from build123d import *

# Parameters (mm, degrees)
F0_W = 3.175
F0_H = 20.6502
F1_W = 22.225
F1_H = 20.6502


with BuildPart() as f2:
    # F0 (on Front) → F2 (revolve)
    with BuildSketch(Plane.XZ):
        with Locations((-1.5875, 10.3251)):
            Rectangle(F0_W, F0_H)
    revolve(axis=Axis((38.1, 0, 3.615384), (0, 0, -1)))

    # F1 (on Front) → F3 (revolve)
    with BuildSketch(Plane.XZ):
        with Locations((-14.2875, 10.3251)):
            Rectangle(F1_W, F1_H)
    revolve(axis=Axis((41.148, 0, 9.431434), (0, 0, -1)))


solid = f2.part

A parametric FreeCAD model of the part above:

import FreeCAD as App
import Part
import Sketcher
from FreeCAD import Vector
Q = App.Units.Quantity

doc = App.newDocument("Part")
params = doc.addObject("Spreadsheet::Sheet", "Params")
for row, (alias, value) in enumerate([
    ("sketch1_width", "0.125 in"),
    ("sketch1_height", "0.813 in"),
    ("revolution_angle", "360 deg"),
    ("sketch2_width", "0.875 in"),
    ("sketch2_height", "0.813 in"),
    ("revolution2_angle", "360 deg"),
], start=1):
    params.set(f"A{row}", alias)
    params.set(f"B{row}", "=" + value)
    params.setAlias(f"B{row}", alias)

body = doc.addObject("PartDesign::Body", "Body")
body.AllowCompound = True

# Sketch on XZ plane
sketch1 = doc.addObject("Sketcher::SketchObject", "Sketch")
body.addObject(sketch1)
sketch1.AttachmentSupport = (doc.XZ_Plane, [""])
sketch1.MapMode = "FlatFace"
sketch1.addGeometry(Part.LineSegment(Vector(-3.175, 20.6502, 0), Vector(-3.175, 0, 0)), False)
sketch1.addGeometry(Part.LineSegment(Vector(-3.175, 0, 0), Vector(0, 0, 0)), False)
sketch1.addGeometry(Part.LineSegment(Vector(0, 0, 0), Vector(0, 20.6502, 0)), False)
sketch1.addGeometry(Part.LineSegment(Vector(0, 20.6502, 0), Vector(-3.175, 20.6502, 0)), False)
sketch1.addGeometry(Part.LineSegment(Vector(38.1, 20.6502, 0), Vector(38.1, 0, 0)), True)  # axis
sketch1.addConstraint(Sketcher.Constraint("Coincident", 0, 2, 1, 1))
sketch1.addConstraint(Sketcher.Constraint("Coincident", 1, 2, 2, 1))
sketch1.addConstraint(Sketcher.Constraint("Coincident", 2, 2, 3, 1))
sketch1.addConstraint(Sketcher.Constraint("Coincident", 3, 2, 0, 1))
sketch1.addConstraint(Sketcher.Constraint("Vertical", 0))
sketch1.addConstraint(Sketcher.Constraint("Horizontal", 1))
sketch1.addConstraint(Sketcher.Constraint("Vertical", 2))
sketch1.addConstraint(Sketcher.Constraint("Horizontal", 3))
sketch1.addConstraint(Sketcher.Constraint("Vertical", 4))
sketch1.addConstraint(Sketcher.Constraint("Coincident", 1, 2, -1, 1))
sketch1.addConstraint(Sketcher.Constraint("PointOnObject", 4, 2, -1))
sketch1.addConstraint(Sketcher.Constraint("Horizontal", 3, 2, 4, 1))
sketch1.addConstraint(Sketcher.Constraint("DistanceX", -1, 1, 4, 1, Q("1.5 in")))
sketch1.addConstraint(Sketcher.Constraint("DistanceX", 1, 1, 1, 2, Q("0.125 in")))
sketch1.addConstraint(Sketcher.Constraint("DistanceY", 0, 2, 0, 1, Q("0.813 in")))
sketch1.setExpression("Constraints[13]", "Params.sketch1_width")
sketch1.setExpression("Constraints[14]", "Params.sketch1_height")
revolution = doc.addObject("PartDesign::Revolution", "Revolution")
body.addObject(revolution)
revolution.Profile = sketch1
revolution.ReferenceAxis = (sketch1, ["Axis0"])
revolution.setExpression("Angle", "Params.revolution_angle")

# Sketch on XZ plane
sketch2 = doc.addObject("Sketcher::SketchObject", "Sketch001")
body.addObject(sketch2)
sketch2.AttachmentSupport = (doc.XZ_Plane, [""])
sketch2.MapMode = "FlatFace"
sketch2.addGeometry(Part.LineSegment(Vector(-25.4, 20.6502, 0), Vector(-25.4, 0, 0)), False)
sketch2.addGeometry(Part.LineSegment(Vector(-25.4, 0, 0), Vector(-3.175, 0, 0)), False)
sketch2.addGeometry(Part.LineSegment(Vector(-3.175, 0, 0), Vector(-3.175, 20.6502, 0)), False)
sketch2.addGeometry(Part.LineSegment(Vector(-3.175, 20.6502, 0), Vector(-25.4, 20.6502, 0)), False)
sketch2.addGeometry(Part.LineSegment(Vector(41.148, 20.6502, 0), Vector(41.148, 0, 0)), True)  # axis
sketch2.addConstraint(Sketcher.Constraint("Coincident", 0, 2, 1, 1))
sketch2.addConstraint(Sketcher.Constraint("Coincident", 1, 2, 2, 1))
sketch2.addConstraint(Sketcher.Constraint("Coincident", 2, 2, 3, 1))
sketch2.addConstraint(Sketcher.Constraint("Coincident", 3, 2, 0, 1))
sketch2.addConstraint(Sketcher.Constraint("Vertical", 0))
sketch2.addConstraint(Sketcher.Constraint("Horizontal", 1))
sketch2.addConstraint(Sketcher.Constraint("Vertical", 2))
sketch2.addConstraint(Sketcher.Constraint("Horizontal", 3))
sketch2.addConstraint(Sketcher.Constraint("Vertical", 4))
sketch2.addConstraint(Sketcher.Constraint("PointOnObject", 0, 2, -1))
sketch2.addConstraint(Sketcher.Constraint("PointOnObject", 4, 2, -1))
sketch2.addConstraint(Sketcher.Constraint("Horizontal", 3, 2, 4, 1))
sketch2.addConstraint(Sketcher.Constraint("DistanceX", 0, 2, -1, 1, Q("1 in")))
sketch2.addConstraint(Sketcher.Constraint("DistanceX", 1, 1, 1, 2, Q("0.875 in")))
sketch2.addConstraint(Sketcher.Constraint("DistanceY", 0, 2, 0, 1, Q("0.813 in")))
sketch2.addConstraint(Sketcher.Constraint("DistanceX", -1, 1, 4, 1, Q("1.62 in")))
sketch2.setExpression("Constraints[13]", "Params.sketch2_width")
sketch2.setExpression("Constraints[14]", "Params.sketch2_height")
revolution2 = doc.addObject("PartDesign::Revolution", "Revolution001")
body.addObject(revolution2)
revolution2.Profile = sketch2
revolution2.ReferenceAxis = (sketch2, ["Axis0"])
revolution2.setExpression("Angle", "Params.revolution2_angle")

doc.recompute()
